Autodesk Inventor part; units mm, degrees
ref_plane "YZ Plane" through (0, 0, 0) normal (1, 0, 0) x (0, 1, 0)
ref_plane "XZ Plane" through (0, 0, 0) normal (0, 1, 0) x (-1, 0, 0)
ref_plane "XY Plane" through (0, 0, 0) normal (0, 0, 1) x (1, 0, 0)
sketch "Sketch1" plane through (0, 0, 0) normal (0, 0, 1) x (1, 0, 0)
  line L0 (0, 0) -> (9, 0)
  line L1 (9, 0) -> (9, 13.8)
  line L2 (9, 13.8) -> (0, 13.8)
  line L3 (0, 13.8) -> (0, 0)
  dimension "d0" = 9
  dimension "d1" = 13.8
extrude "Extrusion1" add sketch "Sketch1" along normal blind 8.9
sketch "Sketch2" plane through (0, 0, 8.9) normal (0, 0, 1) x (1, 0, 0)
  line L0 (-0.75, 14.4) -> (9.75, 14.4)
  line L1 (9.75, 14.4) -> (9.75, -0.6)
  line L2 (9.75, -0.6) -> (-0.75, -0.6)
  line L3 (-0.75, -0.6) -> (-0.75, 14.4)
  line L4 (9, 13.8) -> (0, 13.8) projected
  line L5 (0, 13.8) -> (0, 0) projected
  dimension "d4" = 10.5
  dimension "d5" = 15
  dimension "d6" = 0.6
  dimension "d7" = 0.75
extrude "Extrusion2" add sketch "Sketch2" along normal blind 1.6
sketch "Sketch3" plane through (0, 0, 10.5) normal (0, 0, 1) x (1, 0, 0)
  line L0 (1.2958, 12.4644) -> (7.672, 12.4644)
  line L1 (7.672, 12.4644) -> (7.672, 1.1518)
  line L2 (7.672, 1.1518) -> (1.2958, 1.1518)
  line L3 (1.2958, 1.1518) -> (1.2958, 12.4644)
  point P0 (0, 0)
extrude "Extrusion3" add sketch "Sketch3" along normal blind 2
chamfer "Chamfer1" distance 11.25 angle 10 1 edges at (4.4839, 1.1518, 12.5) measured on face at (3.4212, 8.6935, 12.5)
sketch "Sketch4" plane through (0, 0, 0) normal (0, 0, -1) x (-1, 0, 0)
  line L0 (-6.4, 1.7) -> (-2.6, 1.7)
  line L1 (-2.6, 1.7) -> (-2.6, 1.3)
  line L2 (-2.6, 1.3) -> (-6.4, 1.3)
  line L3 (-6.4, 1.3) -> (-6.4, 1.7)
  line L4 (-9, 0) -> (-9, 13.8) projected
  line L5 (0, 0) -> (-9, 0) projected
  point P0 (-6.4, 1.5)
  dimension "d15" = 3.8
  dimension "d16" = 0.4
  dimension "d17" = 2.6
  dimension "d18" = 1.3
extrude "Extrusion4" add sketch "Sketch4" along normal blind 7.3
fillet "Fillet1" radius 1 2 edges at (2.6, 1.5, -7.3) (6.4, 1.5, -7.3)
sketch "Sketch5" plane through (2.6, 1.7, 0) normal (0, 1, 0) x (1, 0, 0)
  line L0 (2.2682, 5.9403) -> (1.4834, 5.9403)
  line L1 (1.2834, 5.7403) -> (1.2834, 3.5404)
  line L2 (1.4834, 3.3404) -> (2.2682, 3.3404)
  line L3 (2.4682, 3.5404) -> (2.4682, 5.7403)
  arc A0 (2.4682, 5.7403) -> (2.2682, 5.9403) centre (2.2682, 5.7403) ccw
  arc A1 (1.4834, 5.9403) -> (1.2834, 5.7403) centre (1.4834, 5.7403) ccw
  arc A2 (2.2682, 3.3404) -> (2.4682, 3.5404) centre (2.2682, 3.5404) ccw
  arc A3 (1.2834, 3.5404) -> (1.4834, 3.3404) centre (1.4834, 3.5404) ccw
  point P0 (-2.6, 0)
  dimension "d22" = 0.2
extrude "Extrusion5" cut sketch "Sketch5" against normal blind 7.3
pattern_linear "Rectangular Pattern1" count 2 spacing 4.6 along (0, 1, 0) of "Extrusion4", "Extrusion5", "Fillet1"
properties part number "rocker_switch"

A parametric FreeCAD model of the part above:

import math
import FreeCAD as App
import Part
import Sketcher


def edges_at(feature, points):
    """Names of the edges that pass closest to the given points."""
    edges = feature.Shape.Edges
    near = lambda p: min(range(len(edges)), key=lambda i: edges[i].distToShape(Part.Vertex(*p))[0])
    return sorted({f"Edge{near(p) + 1}" for p in points})

doc = App.newDocument("Part")
body = doc.addObject("PartDesign::Body", "Body")

# Sketch on XY plane
sketch1 = doc.addObject("Sketcher::SketchObject", "Sketch")
body.addObject(sketch1)
sketch1.AttachmentSupport = (doc.XY_Plane, [""])
sketch1.MapMode = "FlatFace"
sketch1.addGeometry([
    Part.LineSegment(App.Vector(0, 13.8, 0), App.Vector(0, 0, 0)),
    Part.LineSegment(App.Vector(0, 0, 0), App.Vector(9, 0, 0)),
    Part.LineSegment(App.Vector(9, 0, 0), App.Vector(9, 13.8, 0)),
    Part.LineSegment(App.Vector(9, 13.8, 0), App.Vector(0, 13.8, 0)),
], False)
sketch1.addConstraint([
    Sketcher.Constraint("Coincident", 0, 2, 1, 1),
    Sketcher.Constraint("Coincident", 1, 2, 2, 1),
    Sketcher.Constraint("Coincident", 2, 2, 3, 1),
    Sketcher.Constraint("Coincident", 3, 2, 0, 1),
    Sketcher.Constraint("Vertical", 0),
    Sketcher.Constraint("Horizontal", 1),
    Sketcher.Constraint("Vertical", 2),
    Sketcher.Constraint("Horizontal", 3),
    Sketcher.Constraint("Coincident", 0, 2, -1, 1),
    Sketcher.Constraint("DistanceX", 1, 1, 1, 2, 9.0),
    Sketcher.Constraint("DistanceY", 0, 2, 0, 1, 13.8),
])
pad1 = doc.addObject("PartDesign::Pad", "Pad")
body.addObject(pad1)
pad1.Profile = sketch1
pad1.Length = 8.9

# Sketch on XY plane
sketch2 = doc.addObject("Sketcher::SketchObject", "Sketch001")
body.addObject(sketch2)
sketch2.AttachmentSupport = (doc.XY_Plane, [""])
sketch2.MapMode = "FlatFace"
sketch2.AttachmentOffset = App.Placement(App.Vector(0, 0, 8.9), App.Rotation())
sketch2.addGeometry([
    Part.LineSegment(App.Vector(9.75, 14.4, 0), App.Vector(-0.75, 14.4, 0)),
    Part.LineSegment(App.Vector(-0.75, 14.4, 0), App.Vector(-0.75, -0.6, 0)),
    Part.LineSegment(App.Vector(-0.75, -0.6, 0), App.Vector(9.75, -0.6, 0)),
    Part.LineSegment(App.Vector(9.75, -0.6, 0), App.Vector(9.75, 14.4, 0)),
], False)
sketch2.addConstraint([
    Sketcher.Constraint("Coincident", 0, 2, 1, 1),
    Sketcher.Constraint("Coincident", 1, 2, 2, 1),
    Sketcher.Constraint("Coincident", 2, 2, 3, 1),
    Sketcher.Constraint("Coincident", 3, 2, 0, 1),
    Sketcher.Constraint("Horizontal", 0),
    Sketcher.Constraint("Vertical", 1),
    Sketcher.Constraint("Horizontal", 2),
    Sketcher.Constraint("Vertical", 3),
    Sketcher.Constraint("DistanceY", 1, 2, 1, 1, 15.0),
    Sketcher.Constraint("DistanceX", 0, 2, 0, 1, 10.5),
    Sketcher.Constraint("DistanceY", 1, 2, -1, 1, 0.6),
    Sketcher.Constraint("DistanceX", 0, 2, -1, 1, 0.75),
])
pad2 = doc.addObject("PartDesign::Pad", "Pad001")
body.addObject(pad2)
pad2.Profile = sketch2
pad2.Length = 1.6

# Sketch on XY plane
sketch3 = doc.addObject("Sketcher::SketchObject", "Sketch002")
body.addObject(sketch3)
sketch3.AttachmentSupport = (doc.XY_Plane, [""])
sketch3.MapMode = "FlatFace"
sketch3.AttachmentOffset = App.Placement(App.Vector(0, 0, 10.5), App.Rotation())
sketch3.addGeometry([
    Part.LineSegment(App.Vector(7.672, 12.4644, 0), App.Vector(1.2958, 12.4644, 0)),
    Part.LineSegment(App.Vector(1.2958, 12.4644, 0), App.Vector(1.2958, 1.1518, 0)),
    Part.LineSegment(App.Vector(1.2958, 1.1518, 0), App.Vector(7.672, 1.1518, 0)),
    Part.LineSegment(App.Vector(7.672, 1.1518, 0), App.Vector(7.672, 12.4644, 0)),
], False)
sketch3.addConstraint([
    Sketcher.Constraint("Coincident", 0, 2, 1, 1),
    Sketcher.Constraint("Coincident", 1, 2, 2, 1),
    Sketcher.Constraint("Coincident", 2, 2, 3, 1),
    Sketcher.Constraint("Coincident", 3, 2, 0, 1),
    Sketcher.Constraint("Horizontal", 0),
    Sketcher.Constraint("Vertical", 1),
    Sketcher.Constraint("Horizontal", 2),
    Sketcher.Constraint("Vertical", 3),
    Sketcher.Constraint("DistanceX", 0, 2, 0, 1, 6.3762),
    Sketcher.Constraint("DistanceY", 1, 2, 1, 1, 11.3126),
    Sketcher.Constraint("DistanceX", -1, 1, 2, 2, 7.672),
    Sketcher.Constraint("DistanceY", -1, 1, 0, 2, 12.4644),
])
pad3 = doc.addObject("PartDesign::Pad", "Pad002")
body.addObject(pad3)
pad3.Profile = sketch3
pad3.Length = 2
doc.recompute()

chamfer = doc.addObject("PartDesign::Chamfer", "Chamfer")
body.addObject(chamfer)
chamfer.Base = (pad3, edges_at(pad3, [(4.484, 1.152, 12.5)]))
chamfer.ChamferType = "Distance and Angle"
chamfer.Size = 11.25
chamfer.Angle = 10
chamfer.FlipDirection = True

# Sketch on XY plane
sketch4 = doc.addObject("Sketcher::SketchObject", "Sketch003")
body.addObject(sketch4)
sketch4.AttachmentSupport = (doc.XY_Plane, [""])
sketch4.MapMode = "FlatFace"
sketch4.addGeometry([
    Part.LineSegment(App.Vector(2.6, 1.7, 0), App.Vector(6.4, 1.7, 0)),
    Part.LineSegment(App.Vector(6.4, 1.7, 0), App.Vector(6.4, 1.3, 0)),
    Part.LineSegment(App.Vector(6.4, 1.3, 0), App.Vector(2.6, 1.3, 0)),
    Part.LineSegment(App.Vector(2.6, 1.3, 0), App.Vector(2.6, 1.7, 0)),
], False)
sketch4.addConstraint([
    Sketcher.Constraint("Coincident", 0, 2, 1, 1),
    Sketcher.Constraint("Coincident", 1, 2, 2, 1),
    Sketcher.Constraint("Coincident", 2, 2, 3, 1),
    Sketcher.Constraint("Coincident", 3, 2, 0, 1),
    Sketcher.Constraint("Horizontal", 0),
    Sketcher.Constraint("Vertical", 1),
    Sketcher.Constraint("Horizontal", 2),
    Sketcher.Constraint("Vertical", 3),
    Sketcher.Constraint("DistanceX", 0, 1, 0, 2, 3.8),
    Sketcher.Constraint("DistanceY", 1, 2, 1, 1, 0.4),
    Sketcher.Constraint("DistanceY", -1, 1, 1, 2, 1.3),
    Sketcher.Constraint("DistanceX", -1, 1, 2, 2, 2.6),
])
pad4 = doc.addObject("PartDesign::Pad", "Pad003")
body.addObject(pad4)
pad4.Profile = sketch4
pad4.Length = 7.3
pad4.Reversed = True
doc.recompute()

fillet = doc.addObject("PartDesign::Fillet", "Fillet")
body.addObject(fillet)
fillet.Base = (pad4, edges_at(pad4, [(2.6, 1.5, -7.3), (6.4, 1.5, -7.3)]))
fillet.Radius = 1

# Sketch on XZ plane
sketch5 = doc.addObject("Sketcher::SketchObject", "Sketch004")
body.addObject(sketch5)
sketch5.AttachmentSupport = (doc.XZ_Plane, [""])
sketch5.MapMode = "FlatFace"
sketch5.AttachmentOffset = App.Placement(App.Vector(0, 0, -1.7), App.Rotation())
sketch5.addGeometry([
    Part.ArcOfCircle(Part.Circle(App.Vector(4.8682, -5.7403, 0), App.Vector(0, 0, 1), 0.2), math.radians(-90), math.radians(0)),  # 0
    Part.LineSegment(App.Vector(4.8682, -5.9403, 0), App.Vector(4.0834, -5.9403, 0)),  # 1
    Part.ArcOfCircle(Part.Circle(App.Vector(4.0834, -5.7403, 0), App.Vector(0, 0, 1), 0.2), math.radians(180), math.radians(270)),  # 2
    Part.LineSegment(App.Vector(3.8834, -5.7403, 0), App.Vector(3.8834, -3.5404, 0)),  # 3
    Part.ArcOfCircle(Part.Circle(App.Vector(4.0834, -3.5404, 0), App.Vector(0, 0, 1), 0.2), math.radians(90), math.radians(180)),  # 4
    Part.LineSegment(App.Vector(4.0834, -3.3404, 0), App.Vector(4.8682, -3.3404, 0)),  # 5
    Part.ArcOfCircle(Part.Circle(App.Vector(4.8682, -3.5404, 0), App.Vector(0, 0, 1), 0.2), math.radians(0), math.radians(90)),  # 6
    Part.LineSegment(App.Vector(5.0682, -3.5404, 0), App.Vector(5.0682, -5.7403, 0)),  # 7
], False)
sketch5.addConstraint([
    Sketcher.Constraint("Tangent", 0, 1, 1, 1),
    Sketcher.Constraint("Tangent", 1, 2, 2, 2),
    Sketcher.Constraint("Tangent", 2, 1, 3, 1),
    Sketcher.Constraint("Tangent", 3, 2, 4, 2),
    Sketcher.Constraint("Tangent", 4, 1, 5, 1),
    Sketcher.Constraint("Tangent", 5, 2, 6, 2),
    Sketcher.Constraint("Tangent", 6, 1, 7, 1),
    Sketcher.Constraint("Tangent", 7, 2, 0, 2),
    Sketcher.Constraint("Horizontal", 1),
    Sketcher.Constraint("Vertical", 3),
    Sketcher.Constraint("Horizontal", 5),
    Sketcher.Constraint("Vertical", 7),
    Sketcher.Constraint("Equal", 0, 2),
    Sketcher.Constraint("Equal", 2, 4),
    Sketcher.Constraint("Equal", 4, 6),
    Sketcher.Constraint("Radius", 0, 0.2),
    Sketcher.Constraint("DistanceY", 3, 1, 3, 2, 2.2),
    Sketcher.Constraint("DistanceX", 1, 2, 1, 1, 0.7848),
    Sketcher.Constraint("DistanceX", -1, 1, 0, 3, 4.8682),
    Sketcher.Constraint("DistanceY", 0, 3, -1, 1, 5.7403),
])
pocket1 = doc.addObject("PartDesign::Pocket", "Pocket")
body.addObject(pocket1)
pocket1.Profile = sketch5
pocket1.Length = 7.3
pocket1.Reversed = True
doc.recompute()

linearpattern = doc.addObject("PartDesign::LinearPattern", "LinearPattern")
body.addObject(linearpattern)
linearpattern.Originals = [pad4, pocket1, fillet]
linearpattern.Direction = (doc.Y_Axis, [""])
linearpattern.Mode = "offset"
linearpattern.Offset = 4.6
linearpattern.Occurrences = 2
body.Tip = linearpattern

doc.recompute()
